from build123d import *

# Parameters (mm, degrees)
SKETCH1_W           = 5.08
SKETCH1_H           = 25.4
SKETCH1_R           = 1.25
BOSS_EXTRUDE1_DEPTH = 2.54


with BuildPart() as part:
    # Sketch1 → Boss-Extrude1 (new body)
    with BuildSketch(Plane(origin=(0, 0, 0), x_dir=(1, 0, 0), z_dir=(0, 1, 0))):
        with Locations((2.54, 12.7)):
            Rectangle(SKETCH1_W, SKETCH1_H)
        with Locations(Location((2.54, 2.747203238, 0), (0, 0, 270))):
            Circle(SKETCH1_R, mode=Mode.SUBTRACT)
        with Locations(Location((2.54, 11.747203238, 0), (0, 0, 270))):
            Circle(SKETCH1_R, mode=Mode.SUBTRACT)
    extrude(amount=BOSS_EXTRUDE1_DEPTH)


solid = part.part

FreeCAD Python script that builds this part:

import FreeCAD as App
import Part
import Sketcher
from FreeCAD import Vector
Q = App.Units.Quantity


def add_polygon(sketch, points):
    """Adds a closed chain of lines whose ends are joined by coincident constraints."""
    first, n = sketch.GeometryCount, len(points)
    for a, b in zip(points, points[1:] + points[:1]):
        sketch.addGeometry(Part.LineSegment(App.Vector(*a, 0), App.Vector(*b, 0)), False)
    for i in range(n):
        sketch.addConstraint(Sketcher.Constraint("Coincident", first + i, 2, first + (i + 1) % n, 1))

doc = App.newDocument("Part")
body = doc.addObject("PartDesign::Body", "Body")

sketch1 = doc.addObject("Sketcher::SketchObject", "Sketch")
body.addObject(sketch1)
sketch1.AttachmentSupport = (doc.XZ_Plane, [""])
sketch1.MapMode = "FlatFace"
add_polygon(sketch1, [(0, -25.4), (0, 0), (5.1, 0), (5.1, -25.4)])
sketch1.addGeometry(Part.Circle(Vector(2.5, -2.7, 0), Vector(0, 0, 1), 1.2), False)
sketch1.addGeometry(Part.Circle(Vector(2.5, -11.7, 0), Vector(0, 0, 1), 1.2), False)
sketch1.addConstraint(Sketcher.Constraint("Vertical", 0))
sketch1.addConstraint(Sketcher.Constraint("Horizontal", 1))
sketch1.addConstraint(Sketcher.Constraint("Vertical", 2))
sketch1.addConstraint(Sketcher.Constraint("Horizontal", 3))
sketch1.addConstraint(Sketcher.Constraint("Coincident", 0, 2, -1, 1))
sketch1.addConstraint(Sketcher.Constraint("Equal", 4, 5))
sketch1.addConstraint(Sketcher.Constraint("Vertical", 4, 3, 5, 3))
sketch1.addConstraint(Sketcher.Constraint("DistanceY", 0, 1, 0, 2, Q("1 in")))
sketch1.addConstraint(Sketcher.Constraint("DistanceX", 1, 1, 1, 2, Q("0.2 in")))
sketch1.addConstraint(Sketcher.Constraint("DistanceX", -1, 1, 4, 3, Q("0.1 in")))
sketch1.addConstraint(Sketcher.Constraint("Diameter", 4, Q("2.5 mm")))
sketch1.addConstraint(Sketcher.Constraint("DistanceY", 5, 3, 4, 3, Q("9 mm")))
sketch1.addConstraint(Sketcher.Constraint("DistanceY", 4, 3, -1, 1, Q("2.747203 mm")))
pad1 = doc.addObject("PartDesign::Pad", "Pad")
body.addObject(pad1)
pad1.Profile = sketch1
pad1.Length = Q("0.1 in")
pad1.Reversed = True

doc.recompute()
